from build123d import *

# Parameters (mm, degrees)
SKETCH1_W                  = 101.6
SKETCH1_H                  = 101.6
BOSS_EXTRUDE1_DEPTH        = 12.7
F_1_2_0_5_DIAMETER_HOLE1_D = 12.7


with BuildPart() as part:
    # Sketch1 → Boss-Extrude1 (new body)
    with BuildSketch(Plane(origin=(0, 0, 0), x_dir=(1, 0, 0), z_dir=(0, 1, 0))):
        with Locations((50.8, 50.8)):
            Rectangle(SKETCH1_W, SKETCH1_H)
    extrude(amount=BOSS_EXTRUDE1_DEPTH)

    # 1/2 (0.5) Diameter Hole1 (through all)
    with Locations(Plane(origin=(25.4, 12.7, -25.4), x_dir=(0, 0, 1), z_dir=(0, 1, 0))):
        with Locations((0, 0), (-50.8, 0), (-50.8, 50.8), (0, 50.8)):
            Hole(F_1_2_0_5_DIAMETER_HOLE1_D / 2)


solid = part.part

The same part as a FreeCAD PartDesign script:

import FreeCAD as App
import Part
import Sketcher
Q = App.Units.Quantity

doc = App.newDocument("Part")
body = doc.addObject("PartDesign::Body", "Body")

# Sketch on XZ plane
sketch1 = body.newObject("Sketcher::SketchObject", "Sketch")
sketch1.AttachmentSupport = (doc.getObject("XZ_Plane"), [""])
sketch1.MapMode = "FlatFace"
sketch1.addGeometry([
    Part.LineSegment(App.Vector(0, -102, 0), App.Vector(0, 0, 0)),
    Part.LineSegment(App.Vector(0, 0, 0), App.Vector(102, 0, 0)),
    Part.LineSegment(App.Vector(102, 0, 0), App.Vector(102, -102, 0)),
    Part.LineSegment(App.Vector(102, -102, 0), App.Vector(0, -102, 0)),
], False)
sketch1.addConstraint([
    Sketcher.Constraint("Coincident", 0, 2, 1, 1),
    Sketcher.Constraint("Coincident", 1, 2, 2, 1),
    Sketcher.Constraint("Coincident", 2, 2, 3, 1),
    Sketcher.Constraint("Coincident", 3, 2, 0, 1),
    Sketcher.Constraint("Vertical", 0),
    Sketcher.Constraint("Horizontal", 1),
    Sketcher.Constraint("Vertical", 2),
    Sketcher.Constraint("Horizontal", 3),
    Sketcher.Constraint("Coincident", 0, 2, -1, 1),
    Sketcher.Constraint("Equal", 3, 0),
    Sketcher.Constraint("DistanceX", 1, 1, 1, 2, Q("4 in")),
])
pad1 = body.newObject("PartDesign::Pad", "Pad")
pad1.Profile = sketch1
pad1.Length = Q("0.5 in")
pad1.Reversed = True

# Sketch on XZ plane
sketch2 = body.newObject("Sketcher::SketchObject", "Sketch001")
sketch2.AttachmentSupport = (doc.getObject("XZ_Plane"), [""])
sketch2.MapMode = "FlatFace"
sketch2.AttachmentOffset = App.Placement(App.Vector(0, 0, -0.5 * 25.4), App.Rotation())
sketch2.addGeometry([
    Part.Circle(App.Vector(25, -25, 0), App.Vector(0, 0, 1), 6),
    Part.Circle(App.Vector(25, -76, 0), App.Vector(0, 0, 1), 6),
    Part.Circle(App.Vector(76, -76, 0), App.Vector(0, 0, 1), 6),
    Part.Circle(App.Vector(76, -25, 0), App.Vector(0, 0, 1), 6),
], False)
sketch2.addConstraint([
    Sketcher.Constraint("Equal", 0, 1),
    Sketcher.Constraint("Equal", 1, 2),
    Sketcher.Constraint("Equal", 2, 3),
    Sketcher.Constraint("Horizontal", 1, 3, 2, 3),
    Sketcher.Constraint("Horizontal", 0, 3, 3, 3),
    Sketcher.Constraint("Vertical", 0, 3, 1, 3),
    Sketcher.Constraint("Vertical", 2, 3, 3, 3),
    Sketcher.Constraint("Diameter", 0, Q("0.5 in")),
    Sketcher.Constraint("DistanceX", -1, 1, 0, 3, Q("1 in")),
    Sketcher.Constraint("DistanceY", 0, 3, -1, 1, Q("1 in")),
    Sketcher.Constraint("DistanceY", 1, 3, -1, 1, Q("3 in")),
    Sketcher.Constraint("DistanceX", -1, 1, 2, 3, Q("3 in")),
])
doc.recompute()
hole = body.newObject("PartDesign::Hole", "Hole")
hole.Profile = sketch2
hole.ThreadType = "None"
hole.Diameter = Q("0.5 in")
hole.DepthType = "ThroughAll"
hole.Reversed = True

doc.recompute()
